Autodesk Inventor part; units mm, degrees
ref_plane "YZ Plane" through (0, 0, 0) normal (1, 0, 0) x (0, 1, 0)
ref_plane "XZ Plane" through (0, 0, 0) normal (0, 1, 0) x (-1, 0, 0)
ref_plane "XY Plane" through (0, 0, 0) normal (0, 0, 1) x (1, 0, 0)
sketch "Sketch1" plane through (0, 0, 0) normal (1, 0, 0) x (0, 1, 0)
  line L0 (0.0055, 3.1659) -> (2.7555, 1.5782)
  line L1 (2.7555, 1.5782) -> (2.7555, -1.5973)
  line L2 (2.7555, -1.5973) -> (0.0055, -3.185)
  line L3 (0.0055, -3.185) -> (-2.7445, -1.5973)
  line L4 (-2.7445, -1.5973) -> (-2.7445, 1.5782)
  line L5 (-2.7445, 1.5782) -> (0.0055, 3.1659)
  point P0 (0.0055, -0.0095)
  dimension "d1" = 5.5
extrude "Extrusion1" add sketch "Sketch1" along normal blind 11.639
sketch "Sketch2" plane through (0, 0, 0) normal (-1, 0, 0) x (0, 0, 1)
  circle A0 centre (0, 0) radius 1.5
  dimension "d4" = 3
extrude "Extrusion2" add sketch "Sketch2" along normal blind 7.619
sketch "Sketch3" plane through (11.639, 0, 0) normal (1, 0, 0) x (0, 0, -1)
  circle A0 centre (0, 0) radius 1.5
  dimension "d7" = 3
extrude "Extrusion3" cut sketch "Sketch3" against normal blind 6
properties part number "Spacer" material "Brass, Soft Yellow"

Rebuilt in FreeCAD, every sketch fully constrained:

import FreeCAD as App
import Part
import Sketcher
from FreeCAD import Vector
Q = App.Units.Quantity

doc = App.newDocument("Part")
params = doc.addObject("Spreadsheet::Sheet", "Params")
for row, (alias, value) in enumerate([
    ("pad1_length", "11.639 mm"),
    ("sketch2_diameter", "3 mm"),
    ("pad2_length", "7.619 mm"),
    ("sketch3_diameter", "3 mm"),
    ("pocket1_length", "6 mm"),
], start=1):
    params.set(f"A{row}", alias)
    params.set(f"B{row}", "=" + value)
    params.setAlias(f"B{row}", alias)

body = doc.addObject("PartDesign::Body", "Body")

sketch1 = body.newObject("Sketcher::SketchObject", "Sketch")
sketch1.AttachmentSupport = (doc.getObject("YZ_Plane"), [""])
sketch1.MapMode = "FlatFace"
sketch1.addGeometry([
    Part.LineSegment(Vector(2.8, 1.6, 0), Vector(0, 3.2, 0)),
    Part.LineSegment(Vector(0, 3.2, 0), Vector(-2.7, 1.6, 0)),
    Part.LineSegment(Vector(-2.7, 1.6, 0), Vector(-2.7, -1.6, 0)),
    Part.LineSegment(Vector(-2.7, -1.6, 0), Vector(0, -3.2, 0)),
    Part.LineSegment(Vector(0, -3.2, 0), Vector(2.8, -1.6, 0)),
    Part.LineSegment(Vector(2.8, -1.6, 0), Vector(2.8, 1.6, 0)),
], False)
sketch1.addConstraint([
    Sketcher.Constraint("Coincident", 0, 2, 1, 1),
    Sketcher.Constraint("Coincident", 1, 2, 2, 1),
    Sketcher.Constraint("Coincident", 2, 2, 3, 1),
    Sketcher.Constraint("Coincident", 3, 2, 4, 1),
    Sketcher.Constraint("Coincident", 4, 2, 5, 1),
    Sketcher.Constraint("Coincident", 5, 2, 0, 1),
    Sketcher.Constraint("Vertical", 2),
    Sketcher.Constraint("Vertical", 5),
    Sketcher.Constraint("Parallel", 0, 3),
    Sketcher.Constraint("Parallel", 1, 4),
    Sketcher.Constraint("Horizontal", 2, 2, 4, 2),
    Sketcher.Constraint("Horizontal", 1, 2, 5, 2),
    Sketcher.Constraint("Vertical", 0, 2, 3, 2),
    Sketcher.Constraint("DistanceX", 2, 2, 4, 2, 5.5),
    Sketcher.Constraint("Angle", 0, Q("150.0002 deg")),
    Sketcher.Constraint("DistanceY", 2, 2, 2, 1, 3.1755),
    Sketcher.Constraint("DistanceY", -1, 1, 0, 2, 3.166),
    Sketcher.Constraint("DistanceX", -1, 1, 0, 2, 0.0055),
])
pad1 = body.newObject("PartDesign::Pad", "Pad")
pad1.Profile = sketch1
pad1.setExpression("Length", "Params.pad1_length")

sketch2 = body.newObject("Sketcher::SketchObject", "Sketch001")
sketch2.AttachmentSupport = (doc.getObject("YZ_Plane"), [""])
sketch2.MapMode = "FlatFace"
sketch2.addGeometry(Part.Circle(Vector(0, 0, 0), Vector(0, 0, 1), 1.5), False)
sketch2.addConstraint([
    Sketcher.Constraint("Coincident", 0, 3, -1, 1),
    Sketcher.Constraint("Diameter", 0, 3.0),
])
sketch2.setExpression("Constraints[1]", "Params.sketch2_diameter")
pad2 = body.newObject("PartDesign::Pad", "Pad001")
pad2.Profile = sketch2
pad2.setExpression("Length", "Params.pad2_length")
pad2.Reversed = True

sketch3 = body.newObject("Sketcher::SketchObject", "Sketch002")
sketch3.AttachmentSupport = (doc.getObject("YZ_Plane"), [""])
sketch3.MapMode = "FlatFace"
sketch3.AttachmentOffset = App.Placement(Vector(0, 0, 11.639), App.Rotation())
sketch3.addGeometry(Part.Circle(Vector(0, 0, 0), Vector(0, 0, 1), 1.5), False)
sketch3.addConstraint([
    Sketcher.Constraint("Coincident", 0, 3, -1, 1),
    Sketcher.Constraint("Diameter", 0, 3.0),
])
sketch3.setExpression("Constraints[1]", "Params.sketch3_diameter")
pocket1 = body.newObject("PartDesign::Pocket", "Pocket")
pocket1.Profile = sketch3
pocket1.setExpression("Length", "Params.pocket1_length")

doc.recompute()
